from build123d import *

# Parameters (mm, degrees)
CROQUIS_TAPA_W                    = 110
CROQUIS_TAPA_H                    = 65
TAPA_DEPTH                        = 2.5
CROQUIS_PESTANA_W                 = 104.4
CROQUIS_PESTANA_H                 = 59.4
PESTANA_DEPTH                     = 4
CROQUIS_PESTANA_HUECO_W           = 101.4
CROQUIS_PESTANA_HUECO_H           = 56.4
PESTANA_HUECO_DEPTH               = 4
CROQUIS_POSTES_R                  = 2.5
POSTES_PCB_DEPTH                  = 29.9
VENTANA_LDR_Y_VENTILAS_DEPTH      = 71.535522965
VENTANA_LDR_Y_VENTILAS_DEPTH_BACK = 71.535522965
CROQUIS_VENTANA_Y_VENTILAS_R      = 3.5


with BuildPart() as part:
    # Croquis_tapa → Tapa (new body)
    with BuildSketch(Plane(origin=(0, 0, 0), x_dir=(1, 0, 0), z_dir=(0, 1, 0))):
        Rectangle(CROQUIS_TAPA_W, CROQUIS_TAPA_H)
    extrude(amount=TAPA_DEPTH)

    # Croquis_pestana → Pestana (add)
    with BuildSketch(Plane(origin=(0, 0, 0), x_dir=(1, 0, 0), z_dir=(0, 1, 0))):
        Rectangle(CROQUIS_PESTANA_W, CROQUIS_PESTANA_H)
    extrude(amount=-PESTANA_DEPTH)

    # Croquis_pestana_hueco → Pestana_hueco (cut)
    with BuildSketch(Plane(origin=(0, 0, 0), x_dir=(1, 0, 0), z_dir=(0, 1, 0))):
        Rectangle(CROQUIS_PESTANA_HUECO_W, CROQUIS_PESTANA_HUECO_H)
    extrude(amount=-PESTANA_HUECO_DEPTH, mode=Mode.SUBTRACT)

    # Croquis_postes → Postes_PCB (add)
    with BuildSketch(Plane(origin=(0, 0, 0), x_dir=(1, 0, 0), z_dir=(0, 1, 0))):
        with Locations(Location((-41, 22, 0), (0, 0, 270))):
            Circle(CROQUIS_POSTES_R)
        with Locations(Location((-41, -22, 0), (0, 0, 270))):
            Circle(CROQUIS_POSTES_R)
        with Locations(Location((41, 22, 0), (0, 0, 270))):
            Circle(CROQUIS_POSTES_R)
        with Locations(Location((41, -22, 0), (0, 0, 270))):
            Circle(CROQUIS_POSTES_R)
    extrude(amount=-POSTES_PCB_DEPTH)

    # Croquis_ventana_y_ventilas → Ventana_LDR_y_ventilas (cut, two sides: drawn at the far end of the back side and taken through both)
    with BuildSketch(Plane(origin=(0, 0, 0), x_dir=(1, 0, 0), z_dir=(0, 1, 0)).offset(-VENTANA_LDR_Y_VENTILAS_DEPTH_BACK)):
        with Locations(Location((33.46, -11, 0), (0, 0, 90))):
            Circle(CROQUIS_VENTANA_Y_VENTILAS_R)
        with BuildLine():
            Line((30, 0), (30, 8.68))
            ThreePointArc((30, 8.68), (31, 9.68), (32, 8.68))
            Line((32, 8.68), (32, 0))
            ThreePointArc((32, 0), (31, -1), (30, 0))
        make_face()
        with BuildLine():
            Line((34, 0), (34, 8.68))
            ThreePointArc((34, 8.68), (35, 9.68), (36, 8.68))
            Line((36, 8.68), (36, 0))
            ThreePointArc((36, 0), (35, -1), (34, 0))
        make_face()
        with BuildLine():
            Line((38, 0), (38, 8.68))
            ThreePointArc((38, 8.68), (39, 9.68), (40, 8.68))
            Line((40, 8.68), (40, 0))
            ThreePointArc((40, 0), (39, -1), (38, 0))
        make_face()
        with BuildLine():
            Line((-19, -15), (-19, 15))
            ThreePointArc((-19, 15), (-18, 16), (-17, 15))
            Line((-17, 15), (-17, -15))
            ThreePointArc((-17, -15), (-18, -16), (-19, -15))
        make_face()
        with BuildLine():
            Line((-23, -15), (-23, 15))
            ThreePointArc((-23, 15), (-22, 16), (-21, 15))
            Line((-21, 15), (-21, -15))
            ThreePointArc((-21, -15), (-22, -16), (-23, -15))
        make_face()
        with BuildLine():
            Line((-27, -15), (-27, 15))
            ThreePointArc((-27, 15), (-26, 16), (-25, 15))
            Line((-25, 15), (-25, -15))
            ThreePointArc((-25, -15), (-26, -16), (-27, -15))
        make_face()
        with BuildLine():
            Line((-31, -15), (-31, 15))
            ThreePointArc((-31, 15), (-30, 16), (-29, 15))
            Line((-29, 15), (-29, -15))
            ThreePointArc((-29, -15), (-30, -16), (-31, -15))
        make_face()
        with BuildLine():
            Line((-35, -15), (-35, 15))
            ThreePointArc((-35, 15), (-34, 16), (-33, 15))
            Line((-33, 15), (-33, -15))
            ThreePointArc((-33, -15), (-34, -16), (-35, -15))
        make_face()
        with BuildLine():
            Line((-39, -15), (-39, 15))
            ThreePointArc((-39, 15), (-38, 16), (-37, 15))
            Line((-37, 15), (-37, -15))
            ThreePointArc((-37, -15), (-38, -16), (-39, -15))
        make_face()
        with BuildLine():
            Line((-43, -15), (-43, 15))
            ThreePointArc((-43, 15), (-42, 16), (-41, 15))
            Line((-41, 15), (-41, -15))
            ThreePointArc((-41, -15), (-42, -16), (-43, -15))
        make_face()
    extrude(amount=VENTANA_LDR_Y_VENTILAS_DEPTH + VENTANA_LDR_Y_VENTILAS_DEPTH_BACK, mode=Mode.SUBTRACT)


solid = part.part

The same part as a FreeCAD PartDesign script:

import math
import FreeCAD as App
import Part
import Sketcher
Q = App.Units.Quantity


def add_polygon(sketch, points):
    """Adds a closed chain of lines whose ends are joined by coincident constraints."""
    first, n = sketch.GeometryCount, len(points)
    for a, b in zip(points, points[1:] + points[:1]):
        sketch.addGeometry(Part.LineSegment(App.Vector(*a, 0), App.Vector(*b, 0)), False)
    for i in range(n):
        sketch.addConstraint(Sketcher.Constraint("Coincident", first + i, 2, first + (i + 1) % n, 1))

doc = App.newDocument("Part")
params = doc.addObject("Spreadsheet::Sheet", "Params")
for row, (alias, value) in enumerate([
    ("sketch1_width", "110 mm"),
    ("sketch1_height", "65 mm"),
    ("pad1_length", "2.5 mm"),
    ("sketch2_width", "104.4 mm"),
    ("sketch2_height", "59.4 mm"),
    ("pad2_length", "4 mm"),
    ("sketch3_width", "101.4 mm"),
    ("sketch3_height", "56.4 mm"),
    ("pocket1_length", "4 mm"),
    ("sketch4_diameter", "5 mm"),
    ("pad3_length", "29.9 mm"),
    ("sketch5_diameter", "7 mm"),
    ("sketch5_radius", "1 mm"),
    ("sketch5_height", "30 mm"),
    ("sketch5_height2", "8.68 mm"),
], start=1):
    params.set(f"A{row}", alias)
    params.set(f"B{row}", "=" + value)
    params.setAlias(f"B{row}", alias)

body = doc.addObject("PartDesign::Body", "Body")

# Sketch on XZ plane
sketch1 = doc.addObject("Sketcher::SketchObject", "Sketch")
body.addObject(sketch1)
sketch1.AttachmentSupport = (doc.XZ_Plane, [""])
sketch1.MapMode = "FlatFace"
add_polygon(sketch1, [(-55, -32), (-55, 32), (55, 32), (55, -32)])  # lines 0-3
sketch1.addConstraint(Sketcher.Constraint("Vertical", 0))
sketch1.addConstraint(Sketcher.Constraint("Horizontal", 1))
sketch1.addConstraint(Sketcher.Constraint("Vertical", 2))
sketch1.addConstraint(Sketcher.Constraint("Horizontal", 3))
sketch1.addConstraint(Sketcher.Constraint("Symmetric", 0, 2, 2, 2, -1, 1))
sketch1.addConstraint(Sketcher.Constraint("DistanceX", 1, 1, 1, 2, Q("110 mm")))
sketch1.addConstraint(Sketcher.Constraint("DistanceY", 0, 1, 0, 2, Q("65 mm")))
sketch1.setExpression("Constraints[9]", "Params.sketch1_width")
sketch1.setExpression("Constraints[10]", "Params.sketch1_height")
pad1 = doc.addObject("PartDesign::Pad", "Pad")
body.addObject(pad1)
pad1.Profile = sketch1
pad1.setExpression("Length", "Params.pad1_length")
pad1.Reversed = True

# Sketch on XZ plane
sketch2 = doc.addObject("Sketcher::SketchObject", "Sketch001")
body.addObject(sketch2)
sketch2.AttachmentSupport = (doc.XZ_Plane, [""])
sketch2.MapMode = "FlatFace"
add_polygon(sketch2, [(-52, -30), (-52, 30), (52, 30), (52, -30)])  # lines 0-3
sketch2.addConstraint(Sketcher.Constraint("Vertical", 0))
sketch2.addConstraint(Sketcher.Constraint("Horizontal", 1))
sketch2.addConstraint(Sketcher.Constraint("Vertical", 2))
sketch2.addConstraint(Sketcher.Constraint("Horizontal", 3))
sketch2.addConstraint(Sketcher.Constraint("Symmetric", 0, 2, 2, 2, -1, 1))
sketch2.addConstraint(Sketcher.Constraint("DistanceX", 1, 1, 1, 2, Q("104.4 mm")))
sketch2.addConstraint(Sketcher.Constraint("DistanceY", 0, 1, 0, 2, Q("59.4 mm")))
sketch2.setExpression("Constraints[9]", "Params.sketch2_width")
sketch2.setExpression("Constraints[10]", "Params.sketch2_height")
pad2 = doc.addObject("PartDesign::Pad", "Pad001")
body.addObject(pad2)
pad2.Profile = sketch2
pad2.setExpression("Length", "Params.pad2_length")

# Sketch on XZ plane
sketch3 = doc.addObject("Sketcher::SketchObject", "Sketch002")
body.addObject(sketch3)
sketch3.AttachmentSupport = (doc.XZ_Plane, [""])
sketch3.MapMode = "FlatFace"
add_polygon(sketch3, [(-51, -28), (-51, 28), (51, 28), (51, -28)])  # lines 0-3
sketch3.addConstraint(Sketcher.Constraint("Vertical", 0))
sketch3.addConstraint(Sketcher.Constraint("Horizontal", 1))
sketch3.addConstraint(Sketcher.Constraint("Vertical", 2))
sketch3.addConstraint(Sketcher.Constraint("Horizontal", 3))
sketch3.addConstraint(Sketcher.Constraint("Symmetric", 0, 2, 2, 2, -1, 1))
sketch3.addConstraint(Sketcher.Constraint("DistanceX", 1, 1, 1, 2, Q("101.4 mm")))
sketch3.addConstraint(Sketcher.Constraint("DistanceY", 0, 1, 0, 2, Q("56.4 mm")))
sketch3.setExpression("Constraints[9]", "Params.sketch3_width")
sketch3.setExpression("Constraints[10]", "Params.sketch3_height")
pocket1 = doc.addObject("PartDesign::Pocket", "Pocket")
body.addObject(pocket1)
pocket1.Profile = sketch3
pocket1.setExpression("Length", "Params.pocket1_length")
pocket1.Reversed = True

# Sketch on XZ plane
sketch4 = doc.addObject("Sketcher::SketchObject", "Sketch003")
body.addObject(sketch4)
sketch4.AttachmentSupport = (doc.XZ_Plane, [""])
sketch4.MapMode = "FlatFace"
sketch4.addGeometry(Part.Circle(App.Vector(-41, -22, 0), App.Vector(0, 0, 1), 2.5), False)
sketch4.addGeometry(Part.Circle(App.Vector(-41, 22, 0), App.Vector(0, 0, 1), 2.5), False)
sketch4.addGeometry(Part.Circle(App.Vector(41, -22, 0), App.Vector(0, 0, 1), 2.5), False)
sketch4.addGeometry(Part.Circle(App.Vector(41, 22, 0), App.Vector(0, 0, 1), 2.5), False)
sketch4.addConstraint(Sketcher.Constraint("Equal", 0, 1))
sketch4.addConstraint(Sketcher.Constraint("Equal", 1, 2))
sketch4.addConstraint(Sketcher.Constraint("Equal", 2, 3))
sketch4.addConstraint(Sketcher.Constraint("Symmetric", 1, 3, 2, 3, -1, 1))
sketch4.addConstraint(Sketcher.Constraint("Symmetric", 0, 3, 3, 3, -1, 1))
sketch4.addConstraint(Sketcher.Constraint("Symmetric", 0, 3, 2, 3, -2))
sketch4.addConstraint(Sketcher.Constraint("Diameter", 0, Q("5 mm")))
sketch4.addConstraint(Sketcher.Constraint("DistanceX", 0, 3, -1, 1, Q("41 mm")))
sketch4.addConstraint(Sketcher.Constraint("DistanceY", 0, 3, -1, 1, Q("22 mm")))
sketch4.setExpression("Constraints[6]", "Params.sketch4_diameter")
pad3 = doc.addObject("PartDesign::Pad", "Pad002")
body.addObject(pad3)
pad3.Profile = sketch4
pad3.setExpression("Length", "Params.pad3_length")

# Sketch on XZ plane
sketch5 = doc.addObject("Sketcher::SketchObject", "Sketch004")
body.addObject(sketch5)
sketch5.AttachmentSupport = (doc.XZ_Plane, [""])
sketch5.MapMode = "FlatFace"
sketch5.addGeometry(Part.Circle(App.Vector(33.5, 11, 0), App.Vector(0, 0, 1), 3.5), False)
sketch5.addGeometry(Part.LineSegment(App.Vector(30, -8.7, 0), App.Vector(30, 0, 0)), False)
sketch5.addGeometry(Part.ArcOfCircle(Part.Circle(App.Vector(31, 0, 0), App.Vector(0, 0, 1), 1), math.radians(0), math.radians(180)), False)
sketch5.addGeometry(Part.LineSegment(App.Vector(32, 0, 0), App.Vector(32, -8.7, 0)), False)
sketch5.addGeometry(Part.ArcOfCircle(Part.Circle(App.Vector(31, -8.7, 0), App.Vector(0, 0, 1), 1), math.radians(180), math.radians(360)), False)
sketch5.addGeometry(Part.LineSegment(App.Vector(34, -8.7, 0), App.Vector(34, 0, 0)), False)
sketch5.addGeometry(Part.ArcOfCircle(Part.Circle(App.Vector(35, 0, 0), App.Vector(0, 0, 1), 1), math.radians(0), math.radians(180)), False)
sketch5.addGeometry(Part.LineSegment(App.Vector(36, 0, 0), App.Vector(36, -8.7, 0)), False)
sketch5.addGeometry(Part.ArcOfCircle(Part.Circle(App.Vector(35, -8.7, 0), App.Vector(0, 0, 1), 1), math.radians(180), math.radians(360)), False)
sketch5.addGeometry(Part.LineSegment(App.Vector(38, -8.7, 0), App.Vector(38, 0, 0)), False)
sketch5.addGeometry(Part.ArcOfCircle(Part.Circle(App.Vector(39, 0, 0), App.Vector(0, 0, 1), 1), math.radians(0), math.radians(180)), False)
sketch5.addGeometry(Part.LineSegment(App.Vector(40, 0, 0), App.Vector(40, -8.7, 0)), False)
sketch5.addGeometry(Part.ArcOfCircle(Part.Circle(App.Vector(39, -8.7, 0), App.Vector(0, 0, 1), 1), math.radians(180), math.radians(360)), False)
sketch5.addGeometry(Part.LineSegment(App.Vector(-19, -15, 0), App.Vector(-19, 15, 0)), False)
sketch5.addGeometry(Part.ArcOfCircle(Part.Circle(App.Vector(-18, 15, 0), App.Vector(0, 0, 1), 1), math.radians(0), math.radians(180)), False)
sketch5.addGeometry(Part.LineSegment(App.Vector(-17, 15, 0), App.Vector(-17, -15, 0)), False)
sketch5.addGeometry(Part.ArcOfCircle(Part.Circle(App.Vector(-18, -15, 0), App.Vector(0, 0, 1), 1), math.radians(180), math.radians(360)), False)
sketch5.addGeometry(Part.LineSegment(App.Vector(-23, -15, 0), App.Vector(-23, 15, 0)), False)
sketch5.addGeometry(Part.ArcOfCircle(Part.Circle(App.Vector(-22, 15, 0), App.Vector(0, 0, 1), 1), math.radians(0), math.radians(180)), False)
sketch5.addGeometry(Part.LineSegment(App.Vector(-21, 15, 0), App.Vector(-21, -15, 0)), False)
sketch5.addGeometry(Part.ArcOfCircle(Part.Circle(App.Vector(-22, -15, 0), App.Vector(0, 0, 1), 1), math.radians(180), math.radians(360)), False)
sketch5.addGeometry(Part.LineSegment(App.Vector(-27, -15, 0), App.Vector(-27, 15, 0)), False)
sketch5.addGeometry(Part.ArcOfCircle(Part.Circle(App.Vector(-26, 15, 0), App.Vector(0, 0, 1), 1), math.radians(0), math.radians(180)), False)
sketch5.addGeometry(Part.LineSegment(App.Vector(-25, 15, 0), App.Vector(-25, -15, 0)), False)
sketch5.addGeometry(Part.ArcOfCircle(Part.Circle(App.Vector(-26, -15, 0), App.Vector(0, 0, 1), 1), math.radians(180), math.radians(360)), False)
sketch5.addGeometry(Part.LineSegment(App.Vector(-31, -15, 0), App.Vector(-31, 15, 0)), False)
sketch5.addGeometry(Part.ArcOfCircle(Part.Circle(App.Vector(-30, 15, 0), App.Vector(0, 0, 1), 1), math.radians(0), math.radians(180)), False)
sketch5.addGeometry(Part.LineSegment(App.Vector(-29, 15, 0), App.Vector(-29, -15, 0)), False)
sketch5.addGeometry(Part.ArcOfCircle(Part.Circle(App.Vector(-30, -15, 0), App.Vector(0, 0, 1), 1), math.radians(180), math.radians(360)), False)
sketch5.addGeometry(Part.LineSegment(App.Vector(-35, -15, 0), App.Vector(-35, 15, 0)), False)
sketch5.addGeometry(Part.ArcOfCircle(Part.Circle(App.Vector(-34, 15, 0), App.Vector(0, 0, 1), 1), math.radians(0), math.radians(180)), False)
sketch5.addGeometry(Part.LineSegment(App.Vector(-33, 15, 0), App.Vector(-33, -15, 0)), False)
sketch5.addGeometry(Part.ArcOfCircle(Part.Circle(App.Vector(-34, -15, 0), App.Vector(0, 0, 1), 1), math.radians(180), math.radians(360)), False)
sketch5.addGeometry(Part.LineSegment(App.Vector(-39, -15, 0), App.Vector(-39, 15, 0)), False)
sketch5.addGeometry(Part.ArcOfCircle(Part.Circle(App.Vector(-38, 15, 0), App.Vector(0, 0, 1), 1), math.radians(0), math.radians(180)), False)
sketch5.addGeometry(Part.LineSegment(App.Vector(-37, 15, 0), App.Vector(-37, -15, 0)), False)
sketch5.addGeometry(Part.ArcOfCircle(Part.Circle(App.Vector(-38, -15, 0), App.Vector(0, 0, 1), 1), math.radians(180), math.radians(360)), False)
sketch5.addGeometry(Part.LineSegment(App.Vector(-43, -15, 0), App.Vector(-43, 15, 0)), False)
sketch5.addGeometry(Part.ArcOfCircle(Part.Circle(App.Vector(-42, 15, 0), App.Vector(0, 0, 1), 1), math.radians(0), math.radians(180)), False)
sketch5.addGeometry(Part.LineSegment(App.Vector(-41, 15, 0), App.Vector(-41, -15, 0)), False)
sketch5.addGeometry(Part.ArcOfCircle(Part.Circle(App.Vector(-42, -15, 0), App.Vector(0, 0, 1), 1), math.radians(180), math.radians(360)), False)
sketch5.addConstraint(Sketcher.Constraint("Tangent", 1, 2, 2, 2))
sketch5.addConstraint(Sketcher.Constraint("Tangent", 2, 1, 3, 1))
sketch5.addConstraint(Sketcher.Constraint("Tangent", 3, 2, 4, 2))
sketch5.addConstraint(Sketcher.Constraint("Tangent", 4, 1, 1, 1))
sketch5.addConstraint(Sketcher.Constraint("Tangent", 5, 2, 6, 2))
sketch5.addConstraint(Sketcher.Constraint("Tangent", 6, 1, 7, 1))
sketch5.addConstraint(Sketcher.Constraint("Tangent", 7, 2, 8, 2))
sketch5.addConstraint(Sketcher.Constraint("Tangent", 8, 1, 5, 1))
sketch5.addConstraint(Sketcher.Constraint("Tangent", 9, 2, 10, 2))
sketch5.addConstraint(Sketcher.Constraint("Tangent", 10, 1, 11, 1))
sketch5.addConstraint(Sketcher.Constraint("Tangent", 11, 2, 12, 2))
sketch5.addConstraint(Sketcher.Constraint("Tangent", 12, 1, 9, 1))
sketch5.addConstraint(Sketcher.Constraint("Tangent", 13, 2, 14, 2))
sketch5.addConstraint(Sketcher.Constraint("Tangent", 14, 1, 15, 1))
sketch5.addConstraint(Sketcher.Constraint("Tangent", 15, 2, 16, 2))
sketch5.addConstraint(Sketcher.Constraint("Tangent", 16, 1, 13, 1))
sketch5.addConstraint(Sketcher.Constraint("Tangent", 17, 2, 18, 2))
sketch5.addConstraint(Sketcher.Constraint("Tangent", 18, 1, 19, 1))
sketch5.addConstraint(Sketcher.Constraint("Tangent", 19, 2, 20, 2))
sketch5.addConstraint(Sketcher.Constraint("Tangent", 20, 1, 17, 1))
sketch5.addConstraint(Sketcher.Constraint("Tangent", 21, 2, 22, 2))
sketch5.addConstraint(Sketcher.Constraint("Tangent", 22, 1, 23, 1))
sketch5.addConstraint(Sketcher.Constraint("Tangent", 23, 2, 24, 2))
sketch5.addConstraint(Sketcher.Constraint("Tangent", 24, 1, 21, 1))
sketch5.addConstraint(Sketcher.Constraint("Tangent", 25, 2, 26, 2))
sketch5.addConstraint(Sketcher.Constraint("Tangent", 26, 1, 27, 1))
sketch5.addConstraint(Sketcher.Constraint("Tangent", 27, 2, 28, 2))
sketch5.addConstraint(Sketcher.Constraint("Tangent", 28, 1, 25, 1))
sketch5.addConstraint(Sketcher.Constraint("Tangent", 29, 2, 30, 2))
sketch5.addConstraint(Sketcher.Constraint("Tangent", 30, 1, 31, 1))
sketch5.addConstraint(Sketcher.Constraint("Tangent", 31, 2, 32, 2))
sketch5.addConstraint(Sketcher.Constraint("Tangent", 32, 1, 29, 1))
sketch5.addConstraint(Sketcher.Constraint("Tangent", 33, 2, 34, 2))
sketch5.addConstraint(Sketcher.Constraint("Tangent", 34, 1, 35, 1))
sketch5.addConstraint(Sketcher.Constraint("Tangent", 35, 2, 36, 2))
sketch5.addConstraint(Sketcher.Constraint("Tangent", 36, 1, 33, 1))
sketch5.addConstraint(Sketcher.Constraint("Tangent", 37, 2, 38, 2))
sketch5.addConstraint(Sketcher.Constraint("Tangent", 38, 1, 39, 1))
sketch5.addConstraint(Sketcher.Constraint("Tangent", 39, 2, 40, 2))
sketch5.addConstraint(Sketcher.Constraint("Tangent", 40, 1, 37, 1))
sketch5.addConstraint(Sketcher.Constraint("Vertical", 1))
sketch5.addConstraint(Sketcher.Constraint("Vertical", 3))
sketch5.addConstraint(Sketcher.Constraint("Vertical", 5))
sketch5.addConstraint(Sketcher.Constraint("Vertical", 7))
sketch5.addConstraint(Sketcher.Constraint("Vertical", 9))
sketch5.addConstraint(Sketcher.Constraint("Vertical", 11))
sketch5.addConstraint(Sketcher.Constraint("Vertical", 13))
sketch5.addConstraint(Sketcher.Constraint("Vertical", 15))
sketch5.addConstraint(Sketcher.Constraint("Vertical", 17))
sketch5.addConstraint(Sketcher.Constraint("Vertical", 19))
sketch5.addConstraint(Sketcher.Constraint("Vertical", 21))
sketch5.addConstraint(Sketcher.Constraint("Vertical", 23))
sketch5.addConstraint(Sketcher.Constraint("Vertical", 25))
sketch5.addConstraint(Sketcher.Constraint("Vertical", 27))
sketch5.addConstraint(Sketcher.Constraint("Vertical", 29))
sketch5.addConstraint(Sketcher.Constraint("Vertical", 31))
sketch5.addConstraint(Sketcher.Constraint("Vertical", 33))
sketch5.addConstraint(Sketcher.Constraint("Vertical", 35))
sketch5.addConstraint(Sketcher.Constraint("Vertical", 37))
sketch5.addConstraint(Sketcher.Constraint("Vertical", 39))
sketch5.addConstraint(Sketcher.Constraint("Equal", 4, 6))
sketch5.addConstraint(Sketcher.Constraint("Equal", 8, 10))
sketch5.addConstraint(Sketcher.Constraint("Equal", 12, 14))
sketch5.addConstraint(Sketcher.Constraint("Equal", 16, 18))
sketch5.addConstraint(Sketcher.Constraint("Equal", 20, 22))
sketch5.addConstraint(Sketcher.Constraint("Equal", 24, 26))
sketch5.addConstraint(Sketcher.Constraint("Equal", 28, 30))
sketch5.addConstraint(Sketcher.Constraint("Equal", 32, 34))
sketch5.addConstraint(Sketcher.Constraint("Equal", 36, 38))
sketch5.addConstraint(Sketcher.Constraint("PointOnObject", 2, 3, -1))
sketch5.addConstraint(Sketcher.Constraint("PointOnObject", 6, 3, -1))
sketch5.addConstraint(Sketcher.Constraint("PointOnObject", 10, 3, -1))
sketch5.addConstraint(Sketcher.Constraint("Horizontal", 4, 3, 8, 3))
sketch5.addConstraint(Sketcher.Constraint("Horizontal", 8, 3, 12, 3))
sketch5.addConstraint(Sketcher.Constraint("Horizontal", 14, 3, 18, 3))
sketch5.addConstraint(Sketcher.Constraint("Horizontal", 16, 3, 20, 3))
sketch5.addConstraint(Sketcher.Constraint("Horizontal", 18, 3, 22, 3))
sketch5.addConstraint(Sketcher.Constraint("Horizontal", 20, 3, 24, 3))
sketch5.addConstraint(Sketcher.Constraint("Horizontal", 22, 3, 26, 3))
sketch5.addConstraint(Sketcher.Constraint("Horizontal", 24, 3, 28, 3))
sketch5.addConstraint(Sketcher.Constraint("Horizontal", 26, 3, 30, 3))
sketch5.addConstraint(Sketcher.Constraint("Horizontal", 28, 3, 32, 3))
sketch5.addConstraint(Sketcher.Constraint("Horizontal", 30, 3, 34, 3))
sketch5.addConstraint(Sketcher.Constraint("Horizontal", 32, 3, 36, 3))
sketch5.addConstraint(Sketcher.Constraint("Horizontal", 34, 3, 38, 3))
sketch5.addConstraint(Sketcher.Constraint("Horizontal", 36, 3, 40, 3))
sketch5.addConstraint(Sketcher.Constraint("Diameter", 0, Q("7 mm")))
sketch5.addConstraint(Sketcher.Constraint("Radius", 2, Q("1 mm")))
sketch5.addConstraint(Sketcher.Constraint("DistanceY", 13, 1, 13, 2, Q("30 mm")))
sketch5.addConstraint(Sketcher.Constraint("DistanceY", -1, 1, 0, 3, Q("11 mm")))
sketch5.addConstraint(Sketcher.Constraint("DistanceX", -1, 1, 2, 3, Q("31 mm")))
sketch5.addConstraint(Sketcher.Constraint("DistanceX", -1, 1, 6, 3, Q("35 mm")))
sketch5.addConstraint(Sketcher.Constraint("DistanceX", -1, 1, 10, 3, Q("39 mm")))
sketch5.addConstraint(Sketcher.Constraint("DistanceX", 14, 3, -1, 1, Q("18 mm")))
sketch5.addConstraint(Sketcher.Constraint("DistanceY", -1, 1, 14, 3, Q("15 mm")))
sketch5.addConstraint(Sketcher.Constraint("DistanceX", 18, 3, -1, 1, Q("22 mm")))
sketch5.addConstraint(Sketcher.Constraint("DistanceX", 22, 3, -1, 1, Q("26 mm")))
sketch5.addConstraint(Sketcher.Constraint("DistanceX", 26, 3, -1, 1, Q("30 mm")))
sketch5.addConstraint(Sketcher.Constraint("DistanceX", 30, 3, -1, 1, Q("34 mm")))
sketch5.addConstraint(Sketcher.Constraint("DistanceX", 34, 3, -1, 1, Q("38 mm")))
sketch5.addConstraint(Sketcher.Constraint("DistanceX", 38, 3, -1, 1, Q("42 mm")))
sketch5.addConstraint(Sketcher.Constraint("DistanceY", 1, 1, 1, 2, Q("8.68 mm")))
sketch5.addConstraint(Sketcher.Constraint("DistanceX", -1, 1, 0, 3, Q("33.46 mm")))
sketch5.setExpression("Constraints[86]", "Params.sketch5_diameter")
sketch5.setExpression("Constraints[87]", "Params.sketch5_radius")
sketch5.setExpression("Constraints[88]", "Params.sketch5_height")
sketch5.setExpression("Constraints[101]", "Params.sketch5_height2")
pocket2 = doc.addObject("PartDesign::Pocket", "Pocket001")
body.addObject(pocket2)
pocket2.Profile = sketch5
pocket2.Type = "ThroughAll"
pocket2.Midplane = True

doc.recompute()
